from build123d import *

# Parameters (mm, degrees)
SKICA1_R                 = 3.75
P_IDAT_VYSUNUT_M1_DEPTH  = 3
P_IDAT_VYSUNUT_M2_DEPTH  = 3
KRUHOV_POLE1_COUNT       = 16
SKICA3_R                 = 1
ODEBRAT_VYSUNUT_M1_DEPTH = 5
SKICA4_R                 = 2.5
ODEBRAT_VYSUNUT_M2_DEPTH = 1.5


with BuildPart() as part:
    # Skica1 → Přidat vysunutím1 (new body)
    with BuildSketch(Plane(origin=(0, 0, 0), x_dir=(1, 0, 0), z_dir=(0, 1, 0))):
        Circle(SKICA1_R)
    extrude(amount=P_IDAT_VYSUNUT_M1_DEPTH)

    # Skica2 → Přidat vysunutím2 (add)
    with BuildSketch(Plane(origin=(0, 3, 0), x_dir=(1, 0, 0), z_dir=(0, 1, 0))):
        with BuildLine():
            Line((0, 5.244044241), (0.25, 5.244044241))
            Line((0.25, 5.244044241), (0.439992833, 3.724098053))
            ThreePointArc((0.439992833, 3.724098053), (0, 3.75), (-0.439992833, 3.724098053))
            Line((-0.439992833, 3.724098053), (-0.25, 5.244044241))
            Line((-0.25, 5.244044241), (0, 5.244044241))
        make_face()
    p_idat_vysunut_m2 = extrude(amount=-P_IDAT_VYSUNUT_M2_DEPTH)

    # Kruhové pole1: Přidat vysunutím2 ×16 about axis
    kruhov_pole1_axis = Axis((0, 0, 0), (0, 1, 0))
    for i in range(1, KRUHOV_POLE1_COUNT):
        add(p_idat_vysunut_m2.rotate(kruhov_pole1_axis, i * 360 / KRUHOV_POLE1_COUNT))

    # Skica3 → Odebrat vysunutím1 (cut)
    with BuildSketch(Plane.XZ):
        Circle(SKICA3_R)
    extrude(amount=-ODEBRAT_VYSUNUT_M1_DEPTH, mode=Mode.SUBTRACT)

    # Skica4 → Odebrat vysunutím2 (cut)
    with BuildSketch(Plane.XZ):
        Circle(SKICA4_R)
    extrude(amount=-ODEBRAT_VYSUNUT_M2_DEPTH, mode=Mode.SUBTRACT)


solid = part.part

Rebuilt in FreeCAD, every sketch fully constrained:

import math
import FreeCAD as App
import Part
import Sketcher
from FreeCAD import Vector

doc = App.newDocument("Part")
body = doc.addObject("PartDesign::Body", "Body")

sketch1 = body.newObject("Sketcher::SketchObject", "Sketch")
sketch1.AttachmentSupport = (doc.getObject("XZ_Plane"), [""])
sketch1.MapMode = "FlatFace"
sketch1.addGeometry(Part.Circle(Vector(0, 0, 0), Vector(0, 0, 1), 3.8), False)
sketch1.addConstraint([
    Sketcher.Constraint("Coincident", 0, 3, -1, 1),
    Sketcher.Constraint("Diameter", 0, 7.5),
])
pad1 = body.newObject("PartDesign::Pad", "Pad")
pad1.Profile = sketch1
pad1.Length = 3
pad1.Reversed = True

sketch2 = body.newObject("Sketcher::SketchObject", "Sketch001")
sketch2.AttachmentSupport = (doc.getObject("XZ_Plane"), [""])
sketch2.MapMode = "FlatFace"
sketch2.AttachmentOffset = App.Placement(Vector(0, 0, -3), App.Rotation())
sketch2.addGeometry([
    Part.LineSegment(Vector(0.4, -3.7, 0), Vector(0.2, -5.2, 0)),
    Part.LineSegment(Vector(0.2, -5.2, 0), Vector(-0.2, -5.2, 0)),
    Part.LineSegment(Vector(-0.2, -5.2, 0), Vector(-0.4, -3.7, 0)),
    Part.ArcOfCircle(Part.Circle(Vector(0, 0, 0), Vector(0, 0, 1), 3.8), math.radians(-96.74), math.radians(-83.26)),
], False)
sketch2.addConstraint([
    Sketcher.Constraint("Coincident", 0, 2, 1, 1),
    Sketcher.Constraint("Coincident", 1, 2, 2, 1),
    Sketcher.Constraint("Coincident", 2, 2, 3, 1),
    Sketcher.Constraint("Coincident", 3, 2, 0, 1),
    Sketcher.Constraint("Horizontal", 1),
    Sketcher.Constraint("Coincident", 3, 3, -1, 1),
    Sketcher.Constraint("Horizontal", 2, 2, 3, 2),
    Sketcher.Constraint("Equal", 0, 2),
    Sketcher.Constraint("Radius", 3, 3.75),
    Sketcher.Constraint("DistanceX", 1, 2, 1, 1, 0.5),
    Sketcher.Constraint("DistanceY", 2, 2, -1, 1, 3.724098),
    Sketcher.Constraint("Distance", 0, 1.531775),
])
pad2 = body.newObject("PartDesign::Pad", "Pad001")
pad2.Profile = sketch2
pad2.Length = 3
doc.recompute()

polarpattern = body.newObject("PartDesign::PolarPattern", "PolarPattern")
polarpattern.Originals = [pad2]
polarpattern.Axis = (doc.getObject("Y_Axis"), [""])
polarpattern.Angle = 360
polarpattern.Occurrences = 16
body.Tip = polarpattern

sketch3 = body.newObject("Sketcher::SketchObject", "Sketch002")
sketch3.AttachmentSupport = (doc.getObject("XZ_Plane"), [""])
sketch3.MapMode = "FlatFace"
sketch3.addGeometry(Part.Circle(Vector(0, 0, 0), Vector(0, 0, 1), 1), False)
sketch3.addConstraint([
    Sketcher.Constraint("Coincident", 0, 3, -1, 1),
    Sketcher.Constraint("Diameter", 0, 2.0),
])
pocket1 = body.newObject("PartDesign::Pocket", "Pocket")
pocket1.Profile = sketch3
pocket1.Length = 5

sketch4 = body.newObject("Sketcher::SketchObject", "Sketch003")
sketch4.AttachmentSupport = (doc.getObject("XZ_Plane"), [""])
sketch4.MapMode = "FlatFace"
sketch4.addGeometry(Part.Circle(Vector(0, 0, 0), Vector(0, 0, 1), 2.5), False)
sketch4.addConstraint([
    Sketcher.Constraint("Coincident", 0, 3, -1, 1),
    Sketcher.Constraint("Diameter", 0, 5.0),
])
pocket2 = body.newObject("PartDesign::Pocket", "Pocket001")
pocket2.Profile = sketch4
pocket2.Length = 1.5

doc.recompute()
